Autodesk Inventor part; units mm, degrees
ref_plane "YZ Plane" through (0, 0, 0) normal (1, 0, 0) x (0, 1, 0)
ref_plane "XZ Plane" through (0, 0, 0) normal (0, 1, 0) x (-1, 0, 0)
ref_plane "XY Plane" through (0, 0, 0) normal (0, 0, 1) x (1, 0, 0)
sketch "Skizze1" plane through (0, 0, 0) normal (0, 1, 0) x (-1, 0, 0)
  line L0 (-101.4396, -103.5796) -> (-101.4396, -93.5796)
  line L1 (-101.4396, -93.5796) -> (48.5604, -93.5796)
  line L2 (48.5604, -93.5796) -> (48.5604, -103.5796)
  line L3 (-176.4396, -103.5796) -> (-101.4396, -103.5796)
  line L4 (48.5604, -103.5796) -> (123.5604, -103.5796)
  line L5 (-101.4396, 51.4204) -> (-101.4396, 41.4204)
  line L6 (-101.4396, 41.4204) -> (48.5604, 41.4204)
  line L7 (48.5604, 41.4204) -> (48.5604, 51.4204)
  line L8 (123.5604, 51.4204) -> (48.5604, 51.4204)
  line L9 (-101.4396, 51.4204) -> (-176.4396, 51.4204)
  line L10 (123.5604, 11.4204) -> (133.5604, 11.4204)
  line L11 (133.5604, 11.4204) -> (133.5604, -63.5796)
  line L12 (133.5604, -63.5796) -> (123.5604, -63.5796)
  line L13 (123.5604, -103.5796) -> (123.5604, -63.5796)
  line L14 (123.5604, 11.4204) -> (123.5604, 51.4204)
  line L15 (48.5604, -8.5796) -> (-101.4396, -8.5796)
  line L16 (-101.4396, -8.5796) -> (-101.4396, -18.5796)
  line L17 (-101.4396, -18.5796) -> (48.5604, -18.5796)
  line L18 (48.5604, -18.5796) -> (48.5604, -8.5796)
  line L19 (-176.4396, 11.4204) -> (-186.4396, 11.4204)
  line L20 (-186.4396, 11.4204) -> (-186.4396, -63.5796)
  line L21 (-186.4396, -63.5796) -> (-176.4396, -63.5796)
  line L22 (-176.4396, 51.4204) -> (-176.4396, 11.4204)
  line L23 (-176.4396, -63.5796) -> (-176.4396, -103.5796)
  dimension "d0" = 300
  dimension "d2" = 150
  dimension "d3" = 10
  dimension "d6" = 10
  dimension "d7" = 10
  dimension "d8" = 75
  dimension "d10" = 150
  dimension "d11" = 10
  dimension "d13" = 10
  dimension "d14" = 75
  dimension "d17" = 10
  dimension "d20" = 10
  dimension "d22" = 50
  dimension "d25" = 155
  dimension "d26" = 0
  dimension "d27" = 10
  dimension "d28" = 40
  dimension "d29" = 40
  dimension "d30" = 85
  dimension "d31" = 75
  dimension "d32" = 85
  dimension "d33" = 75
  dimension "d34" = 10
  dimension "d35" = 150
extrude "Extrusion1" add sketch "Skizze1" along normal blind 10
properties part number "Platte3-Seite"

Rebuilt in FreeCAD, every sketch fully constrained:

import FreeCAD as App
import Part
import Sketcher
from FreeCAD import Vector

doc = App.newDocument("Part")
params = doc.addObject("Spreadsheet::Sheet", "Params")
for row, (alias, value) in enumerate([
    ("sketch1_width", "75 mm"),
    ("sketch1_width2", "150 mm"),
    ("sketch1_width3", "10 mm"),
    ("sketch1_height", "40 mm"),
    ("pad1_length", "10 mm"),
], start=1):
    params.set(f"A{row}", alias)
    params.set(f"B{row}", "=" + value)
    params.setAlias(f"B{row}", alias)

body = doc.addObject("PartDesign::Body", "Body")

sketch1 = body.newObject("Sketcher::SketchObject", "Sketch")
sketch1.AttachmentSupport = (doc.getObject("XZ_Plane"), [""])
sketch1.MapMode = "FlatFace"
sketch1.addGeometry(Part.LineSegment(Vector(176.4396, -103.5796, 0), Vector(101.4396, -103.5796, 0)), False)
sketch1.addGeometry(Part.LineSegment(Vector(101.4396, -103.5796, 0), Vector(101.4396, -93.5796, 0)), False)
sketch1.addGeometry(Part.LineSegment(Vector(101.4396, -93.5796, 0), Vector(-48.5604, -93.5796, 0)), False)
sketch1.addGeometry(Part.LineSegment(Vector(-48.5604, -93.5796, 0), Vector(-48.5604, -103.5796, 0)), False)
sketch1.addGeometry(Part.LineSegment(Vector(-48.5604, -103.5796, 0), Vector(-123.5604, -103.5796, 0)), False)
sketch1.addGeometry(Part.LineSegment(Vector(-123.5604, -103.5796, 0), Vector(-123.5604, -63.5796, 0)), False)
sketch1.addGeometry(Part.LineSegment(Vector(-123.5604, -63.5796, 0), Vector(-133.5604, -63.5796, 0)), False)
sketch1.addGeometry(Part.LineSegment(Vector(-133.5604, -63.5796, 0), Vector(-133.5604, 11.4204, 0)), False)
sketch1.addGeometry(Part.LineSegment(Vector(-133.5604, 11.4204, 0), Vector(-123.5604, 11.4204, 0)), False)
sketch1.addGeometry(Part.LineSegment(Vector(-123.5604, 11.4204, 0), Vector(-123.5604, 51.4204, 0)), False)
sketch1.addGeometry(Part.LineSegment(Vector(-123.5604, 51.4204, 0), Vector(-48.5604, 51.4204, 0)), False)
sketch1.addGeometry(Part.LineSegment(Vector(-48.5604, 51.4204, 0), Vector(-48.5604, 41.4204, 0)), False)
sketch1.addGeometry(Part.LineSegment(Vector(-48.5604, 41.4204, 0), Vector(101.4396, 41.4204, 0)), False)
sketch1.addGeometry(Part.LineSegment(Vector(101.4396, 41.4204, 0), Vector(101.4396, 51.4204, 0)), False)
sketch1.addGeometry(Part.LineSegment(Vector(101.4396, 51.4204, 0), Vector(176.4396, 51.4204, 0)), False)
sketch1.addGeometry(Part.LineSegment(Vector(176.4396, 51.4204, 0), Vector(176.4396, 11.4204, 0)), False)
sketch1.addGeometry(Part.LineSegment(Vector(176.4396, 11.4204, 0), Vector(186.4396, 11.4204, 0)), False)
sketch1.addGeometry(Part.LineSegment(Vector(186.4396, 11.4204, 0), Vector(186.4396, -63.5796, 0)), False)
sketch1.addGeometry(Part.LineSegment(Vector(186.4396, -63.5796, 0), Vector(176.4396, -63.5796, 0)), False)
sketch1.addGeometry(Part.LineSegment(Vector(176.4396, -63.5796, 0), Vector(176.4396, -103.5796, 0)), False)
sketch1.addGeometry(Part.LineSegment(Vector(101.4396, -8.5796, 0), Vector(-48.5604, -8.5796, 0)), False)
sketch1.addGeometry(Part.LineSegment(Vector(-48.5604, -8.5796, 0), Vector(-48.5604, -18.5796, 0)), False)
sketch1.addGeometry(Part.LineSegment(Vector(-48.5604, -18.5796, 0), Vector(101.4396, -18.5796, 0)), False)
sketch1.addGeometry(Part.LineSegment(Vector(101.4396, -18.5796, 0), Vector(101.4396, -8.5796, 0)), False)
sketch1.addConstraint(Sketcher.Constraint("Coincident", 0, 2, 1, 1))
sketch1.addConstraint(Sketcher.Constraint("Coincident", 1, 2, 2, 1))
sketch1.addConstraint(Sketcher.Constraint("Coincident", 2, 2, 3, 1))
sketch1.addConstraint(Sketcher.Constraint("Coincident", 3, 2, 4, 1))
sketch1.addConstraint(Sketcher.Constraint("Coincident", 4, 2, 5, 1))
sketch1.addConstraint(Sketcher.Constraint("Coincident", 5, 2, 6, 1))
sketch1.addConstraint(Sketcher.Constraint("Coincident", 6, 2, 7, 1))
sketch1.addConstraint(Sketcher.Constraint("Coincident", 7, 2, 8, 1))
sketch1.addConstraint(Sketcher.Constraint("Coincident", 8, 2, 9, 1))
sketch1.addConstraint(Sketcher.Constraint("Coincident", 9, 2, 10, 1))
sketch1.addConstraint(Sketcher.Constraint("Coincident", 10, 2, 11, 1))
sketch1.addConstraint(Sketcher.Constraint("Coincident", 11, 2, 12, 1))
sketch1.addConstraint(Sketcher.Constraint("Coincident", 12, 2, 13, 1))
sketch1.addConstraint(Sketcher.Constraint("Coincident", 13, 2, 14, 1))
sketch1.addConstraint(Sketcher.Constraint("Coincident", 14, 2, 15, 1))
sketch1.addConstraint(Sketcher.Constraint("Coincident", 15, 2, 16, 1))
sketch1.addConstraint(Sketcher.Constraint("Coincident", 16, 2, 17, 1))
sketch1.addConstraint(Sketcher.Constraint("Coincident", 17, 2, 18, 1))
sketch1.addConstraint(Sketcher.Constraint("Coincident", 18, 2, 19, 1))
sketch1.addConstraint(Sketcher.Constraint("Coincident", 19, 2, 0, 1))
sketch1.addConstraint(Sketcher.Constraint("Coincident", 20, 2, 21, 1))
sketch1.addConstraint(Sketcher.Constraint("Coincident", 21, 2, 22, 1))
sketch1.addConstraint(Sketcher.Constraint("Coincident", 22, 2, 23, 1))
sketch1.addConstraint(Sketcher.Constraint("Coincident", 23, 2, 20, 1))
sketch1.addConstraint(Sketcher.Constraint("Horizontal", 0))
sketch1.addConstraint(Sketcher.Constraint("Vertical", 1))
sketch1.addConstraint(Sketcher.Constraint("Horizontal", 2))
sketch1.addConstraint(Sketcher.Constraint("Vertical", 3))
sketch1.addConstraint(Sketcher.Constraint("Horizontal", 4))
sketch1.addConstraint(Sketcher.Constraint("Vertical", 5))
sketch1.addConstraint(Sketcher.Constraint("Horizontal", 6))
sketch1.addConstraint(Sketcher.Constraint("Vertical", 7))
sketch1.addConstraint(Sketcher.Constraint("Horizontal", 8))
sketch1.addConstraint(Sketcher.Constraint("Vertical", 9))
sketch1.addConstraint(Sketcher.Constraint("Horizontal", 10))
sketch1.addConstraint(Sketcher.Constraint("Vertical", 11))
sketch1.addConstraint(Sketcher.Constraint("Horizontal", 12))
sketch1.addConstraint(Sketcher.Constraint("Vertical", 13))
sketch1.addConstraint(Sketcher.Constraint("Horizontal", 14))
sketch1.addConstraint(Sketcher.Constraint("Vertical", 15))
sketch1.addConstraint(Sketcher.Constraint("Horizontal", 16))
sketch1.addConstraint(Sketcher.Constraint("Vertical", 17))
sketch1.addConstraint(Sketcher.Constraint("Horizontal", 18))
sketch1.addConstraint(Sketcher.Constraint("Vertical", 19))
sketch1.addConstraint(Sketcher.Constraint("Horizontal", 20))
sketch1.addConstraint(Sketcher.Constraint("Vertical", 21))
sketch1.addConstraint(Sketcher.Constraint("Horizontal", 22))
sketch1.addConstraint(Sketcher.Constraint("Vertical", 23))
sketch1.addConstraint(Sketcher.Constraint("Horizontal", 0, 2, 3, 2))
sketch1.addConstraint(Sketcher.Constraint("Horizontal", 10, 2, 13, 2))
sketch1.addConstraint(Sketcher.Constraint("Horizontal", 8, 2, 15, 2))
sketch1.addConstraint(Sketcher.Constraint("Horizontal", 6, 2, 17, 2))
sketch1.addConstraint(Sketcher.Constraint("Vertical", 5, 2, 8, 2))
sketch1.addConstraint(Sketcher.Constraint("Vertical", 3, 2, 10, 2))
sketch1.addConstraint(Sketcher.Constraint("Vertical", 1, 2, 12, 2))
sketch1.addConstraint(Sketcher.Constraint("Vertical", 15, 2, 18, 2))
sketch1.addConstraint(Sketcher.Constraint("Vertical", 11, 2, 20, 2))
sketch1.addConstraint(Sketcher.Constraint("Vertical", 13, 2, 22, 2))
sketch1.addConstraint(Sketcher.Constraint("Equal", 0, 4))
sketch1.addConstraint(Sketcher.Constraint("Equal", 8, 16))
sketch1.addConstraint(Sketcher.Constraint("Equal", 18, 1))
sketch1.addConstraint(Sketcher.Constraint("Equal", 14, 7))
sketch1.addConstraint(Sketcher.Constraint("Equal", 5, 9))
sketch1.addConstraint(Sketcher.Constraint("Equal", 3, 11))
sketch1.addConstraint(Sketcher.Constraint("Equal", 13, 21))
sketch1.addConstraint(Sketcher.Constraint("DistanceX", 0, 2, 0, 1, 75.0))
sketch1.addConstraint(Sketcher.Constraint("DistanceX", 2, 2, 2, 1, 150.0))
sketch1.addConstraint(Sketcher.Constraint("DistanceX", 6, 2, 6, 1, 10.0))
sketch1.addConstraint(Sketcher.Constraint("DistanceY", 5, 1, 5, 2, 40.0))
sketch1.addConstraint(Sketcher.Constraint("DistanceY", 20, 2, 11, 2, 50.0))
sketch1.addConstraint(Sketcher.Constraint("DistanceX", -1, 1, 0, 2, 101.4396))
sketch1.addConstraint(Sketcher.Constraint("DistanceY", 0, 2, -1, 1, 103.5796))
sketch1.setExpression("Constraints[65]", "Params.sketch1_width")
sketch1.setExpression("Constraints[66]", "Params.sketch1_width2")
sketch1.setExpression("Constraints[67]", "Params.sketch1_width3")
sketch1.setExpression("Constraints[68]", "Params.sketch1_height")
pad1 = body.newObject("PartDesign::Pad", "Pad")
pad1.Profile = sketch1
pad1.setExpression("Length", "Params.pad1_length")
pad1.Reversed = True

doc.recompute()
